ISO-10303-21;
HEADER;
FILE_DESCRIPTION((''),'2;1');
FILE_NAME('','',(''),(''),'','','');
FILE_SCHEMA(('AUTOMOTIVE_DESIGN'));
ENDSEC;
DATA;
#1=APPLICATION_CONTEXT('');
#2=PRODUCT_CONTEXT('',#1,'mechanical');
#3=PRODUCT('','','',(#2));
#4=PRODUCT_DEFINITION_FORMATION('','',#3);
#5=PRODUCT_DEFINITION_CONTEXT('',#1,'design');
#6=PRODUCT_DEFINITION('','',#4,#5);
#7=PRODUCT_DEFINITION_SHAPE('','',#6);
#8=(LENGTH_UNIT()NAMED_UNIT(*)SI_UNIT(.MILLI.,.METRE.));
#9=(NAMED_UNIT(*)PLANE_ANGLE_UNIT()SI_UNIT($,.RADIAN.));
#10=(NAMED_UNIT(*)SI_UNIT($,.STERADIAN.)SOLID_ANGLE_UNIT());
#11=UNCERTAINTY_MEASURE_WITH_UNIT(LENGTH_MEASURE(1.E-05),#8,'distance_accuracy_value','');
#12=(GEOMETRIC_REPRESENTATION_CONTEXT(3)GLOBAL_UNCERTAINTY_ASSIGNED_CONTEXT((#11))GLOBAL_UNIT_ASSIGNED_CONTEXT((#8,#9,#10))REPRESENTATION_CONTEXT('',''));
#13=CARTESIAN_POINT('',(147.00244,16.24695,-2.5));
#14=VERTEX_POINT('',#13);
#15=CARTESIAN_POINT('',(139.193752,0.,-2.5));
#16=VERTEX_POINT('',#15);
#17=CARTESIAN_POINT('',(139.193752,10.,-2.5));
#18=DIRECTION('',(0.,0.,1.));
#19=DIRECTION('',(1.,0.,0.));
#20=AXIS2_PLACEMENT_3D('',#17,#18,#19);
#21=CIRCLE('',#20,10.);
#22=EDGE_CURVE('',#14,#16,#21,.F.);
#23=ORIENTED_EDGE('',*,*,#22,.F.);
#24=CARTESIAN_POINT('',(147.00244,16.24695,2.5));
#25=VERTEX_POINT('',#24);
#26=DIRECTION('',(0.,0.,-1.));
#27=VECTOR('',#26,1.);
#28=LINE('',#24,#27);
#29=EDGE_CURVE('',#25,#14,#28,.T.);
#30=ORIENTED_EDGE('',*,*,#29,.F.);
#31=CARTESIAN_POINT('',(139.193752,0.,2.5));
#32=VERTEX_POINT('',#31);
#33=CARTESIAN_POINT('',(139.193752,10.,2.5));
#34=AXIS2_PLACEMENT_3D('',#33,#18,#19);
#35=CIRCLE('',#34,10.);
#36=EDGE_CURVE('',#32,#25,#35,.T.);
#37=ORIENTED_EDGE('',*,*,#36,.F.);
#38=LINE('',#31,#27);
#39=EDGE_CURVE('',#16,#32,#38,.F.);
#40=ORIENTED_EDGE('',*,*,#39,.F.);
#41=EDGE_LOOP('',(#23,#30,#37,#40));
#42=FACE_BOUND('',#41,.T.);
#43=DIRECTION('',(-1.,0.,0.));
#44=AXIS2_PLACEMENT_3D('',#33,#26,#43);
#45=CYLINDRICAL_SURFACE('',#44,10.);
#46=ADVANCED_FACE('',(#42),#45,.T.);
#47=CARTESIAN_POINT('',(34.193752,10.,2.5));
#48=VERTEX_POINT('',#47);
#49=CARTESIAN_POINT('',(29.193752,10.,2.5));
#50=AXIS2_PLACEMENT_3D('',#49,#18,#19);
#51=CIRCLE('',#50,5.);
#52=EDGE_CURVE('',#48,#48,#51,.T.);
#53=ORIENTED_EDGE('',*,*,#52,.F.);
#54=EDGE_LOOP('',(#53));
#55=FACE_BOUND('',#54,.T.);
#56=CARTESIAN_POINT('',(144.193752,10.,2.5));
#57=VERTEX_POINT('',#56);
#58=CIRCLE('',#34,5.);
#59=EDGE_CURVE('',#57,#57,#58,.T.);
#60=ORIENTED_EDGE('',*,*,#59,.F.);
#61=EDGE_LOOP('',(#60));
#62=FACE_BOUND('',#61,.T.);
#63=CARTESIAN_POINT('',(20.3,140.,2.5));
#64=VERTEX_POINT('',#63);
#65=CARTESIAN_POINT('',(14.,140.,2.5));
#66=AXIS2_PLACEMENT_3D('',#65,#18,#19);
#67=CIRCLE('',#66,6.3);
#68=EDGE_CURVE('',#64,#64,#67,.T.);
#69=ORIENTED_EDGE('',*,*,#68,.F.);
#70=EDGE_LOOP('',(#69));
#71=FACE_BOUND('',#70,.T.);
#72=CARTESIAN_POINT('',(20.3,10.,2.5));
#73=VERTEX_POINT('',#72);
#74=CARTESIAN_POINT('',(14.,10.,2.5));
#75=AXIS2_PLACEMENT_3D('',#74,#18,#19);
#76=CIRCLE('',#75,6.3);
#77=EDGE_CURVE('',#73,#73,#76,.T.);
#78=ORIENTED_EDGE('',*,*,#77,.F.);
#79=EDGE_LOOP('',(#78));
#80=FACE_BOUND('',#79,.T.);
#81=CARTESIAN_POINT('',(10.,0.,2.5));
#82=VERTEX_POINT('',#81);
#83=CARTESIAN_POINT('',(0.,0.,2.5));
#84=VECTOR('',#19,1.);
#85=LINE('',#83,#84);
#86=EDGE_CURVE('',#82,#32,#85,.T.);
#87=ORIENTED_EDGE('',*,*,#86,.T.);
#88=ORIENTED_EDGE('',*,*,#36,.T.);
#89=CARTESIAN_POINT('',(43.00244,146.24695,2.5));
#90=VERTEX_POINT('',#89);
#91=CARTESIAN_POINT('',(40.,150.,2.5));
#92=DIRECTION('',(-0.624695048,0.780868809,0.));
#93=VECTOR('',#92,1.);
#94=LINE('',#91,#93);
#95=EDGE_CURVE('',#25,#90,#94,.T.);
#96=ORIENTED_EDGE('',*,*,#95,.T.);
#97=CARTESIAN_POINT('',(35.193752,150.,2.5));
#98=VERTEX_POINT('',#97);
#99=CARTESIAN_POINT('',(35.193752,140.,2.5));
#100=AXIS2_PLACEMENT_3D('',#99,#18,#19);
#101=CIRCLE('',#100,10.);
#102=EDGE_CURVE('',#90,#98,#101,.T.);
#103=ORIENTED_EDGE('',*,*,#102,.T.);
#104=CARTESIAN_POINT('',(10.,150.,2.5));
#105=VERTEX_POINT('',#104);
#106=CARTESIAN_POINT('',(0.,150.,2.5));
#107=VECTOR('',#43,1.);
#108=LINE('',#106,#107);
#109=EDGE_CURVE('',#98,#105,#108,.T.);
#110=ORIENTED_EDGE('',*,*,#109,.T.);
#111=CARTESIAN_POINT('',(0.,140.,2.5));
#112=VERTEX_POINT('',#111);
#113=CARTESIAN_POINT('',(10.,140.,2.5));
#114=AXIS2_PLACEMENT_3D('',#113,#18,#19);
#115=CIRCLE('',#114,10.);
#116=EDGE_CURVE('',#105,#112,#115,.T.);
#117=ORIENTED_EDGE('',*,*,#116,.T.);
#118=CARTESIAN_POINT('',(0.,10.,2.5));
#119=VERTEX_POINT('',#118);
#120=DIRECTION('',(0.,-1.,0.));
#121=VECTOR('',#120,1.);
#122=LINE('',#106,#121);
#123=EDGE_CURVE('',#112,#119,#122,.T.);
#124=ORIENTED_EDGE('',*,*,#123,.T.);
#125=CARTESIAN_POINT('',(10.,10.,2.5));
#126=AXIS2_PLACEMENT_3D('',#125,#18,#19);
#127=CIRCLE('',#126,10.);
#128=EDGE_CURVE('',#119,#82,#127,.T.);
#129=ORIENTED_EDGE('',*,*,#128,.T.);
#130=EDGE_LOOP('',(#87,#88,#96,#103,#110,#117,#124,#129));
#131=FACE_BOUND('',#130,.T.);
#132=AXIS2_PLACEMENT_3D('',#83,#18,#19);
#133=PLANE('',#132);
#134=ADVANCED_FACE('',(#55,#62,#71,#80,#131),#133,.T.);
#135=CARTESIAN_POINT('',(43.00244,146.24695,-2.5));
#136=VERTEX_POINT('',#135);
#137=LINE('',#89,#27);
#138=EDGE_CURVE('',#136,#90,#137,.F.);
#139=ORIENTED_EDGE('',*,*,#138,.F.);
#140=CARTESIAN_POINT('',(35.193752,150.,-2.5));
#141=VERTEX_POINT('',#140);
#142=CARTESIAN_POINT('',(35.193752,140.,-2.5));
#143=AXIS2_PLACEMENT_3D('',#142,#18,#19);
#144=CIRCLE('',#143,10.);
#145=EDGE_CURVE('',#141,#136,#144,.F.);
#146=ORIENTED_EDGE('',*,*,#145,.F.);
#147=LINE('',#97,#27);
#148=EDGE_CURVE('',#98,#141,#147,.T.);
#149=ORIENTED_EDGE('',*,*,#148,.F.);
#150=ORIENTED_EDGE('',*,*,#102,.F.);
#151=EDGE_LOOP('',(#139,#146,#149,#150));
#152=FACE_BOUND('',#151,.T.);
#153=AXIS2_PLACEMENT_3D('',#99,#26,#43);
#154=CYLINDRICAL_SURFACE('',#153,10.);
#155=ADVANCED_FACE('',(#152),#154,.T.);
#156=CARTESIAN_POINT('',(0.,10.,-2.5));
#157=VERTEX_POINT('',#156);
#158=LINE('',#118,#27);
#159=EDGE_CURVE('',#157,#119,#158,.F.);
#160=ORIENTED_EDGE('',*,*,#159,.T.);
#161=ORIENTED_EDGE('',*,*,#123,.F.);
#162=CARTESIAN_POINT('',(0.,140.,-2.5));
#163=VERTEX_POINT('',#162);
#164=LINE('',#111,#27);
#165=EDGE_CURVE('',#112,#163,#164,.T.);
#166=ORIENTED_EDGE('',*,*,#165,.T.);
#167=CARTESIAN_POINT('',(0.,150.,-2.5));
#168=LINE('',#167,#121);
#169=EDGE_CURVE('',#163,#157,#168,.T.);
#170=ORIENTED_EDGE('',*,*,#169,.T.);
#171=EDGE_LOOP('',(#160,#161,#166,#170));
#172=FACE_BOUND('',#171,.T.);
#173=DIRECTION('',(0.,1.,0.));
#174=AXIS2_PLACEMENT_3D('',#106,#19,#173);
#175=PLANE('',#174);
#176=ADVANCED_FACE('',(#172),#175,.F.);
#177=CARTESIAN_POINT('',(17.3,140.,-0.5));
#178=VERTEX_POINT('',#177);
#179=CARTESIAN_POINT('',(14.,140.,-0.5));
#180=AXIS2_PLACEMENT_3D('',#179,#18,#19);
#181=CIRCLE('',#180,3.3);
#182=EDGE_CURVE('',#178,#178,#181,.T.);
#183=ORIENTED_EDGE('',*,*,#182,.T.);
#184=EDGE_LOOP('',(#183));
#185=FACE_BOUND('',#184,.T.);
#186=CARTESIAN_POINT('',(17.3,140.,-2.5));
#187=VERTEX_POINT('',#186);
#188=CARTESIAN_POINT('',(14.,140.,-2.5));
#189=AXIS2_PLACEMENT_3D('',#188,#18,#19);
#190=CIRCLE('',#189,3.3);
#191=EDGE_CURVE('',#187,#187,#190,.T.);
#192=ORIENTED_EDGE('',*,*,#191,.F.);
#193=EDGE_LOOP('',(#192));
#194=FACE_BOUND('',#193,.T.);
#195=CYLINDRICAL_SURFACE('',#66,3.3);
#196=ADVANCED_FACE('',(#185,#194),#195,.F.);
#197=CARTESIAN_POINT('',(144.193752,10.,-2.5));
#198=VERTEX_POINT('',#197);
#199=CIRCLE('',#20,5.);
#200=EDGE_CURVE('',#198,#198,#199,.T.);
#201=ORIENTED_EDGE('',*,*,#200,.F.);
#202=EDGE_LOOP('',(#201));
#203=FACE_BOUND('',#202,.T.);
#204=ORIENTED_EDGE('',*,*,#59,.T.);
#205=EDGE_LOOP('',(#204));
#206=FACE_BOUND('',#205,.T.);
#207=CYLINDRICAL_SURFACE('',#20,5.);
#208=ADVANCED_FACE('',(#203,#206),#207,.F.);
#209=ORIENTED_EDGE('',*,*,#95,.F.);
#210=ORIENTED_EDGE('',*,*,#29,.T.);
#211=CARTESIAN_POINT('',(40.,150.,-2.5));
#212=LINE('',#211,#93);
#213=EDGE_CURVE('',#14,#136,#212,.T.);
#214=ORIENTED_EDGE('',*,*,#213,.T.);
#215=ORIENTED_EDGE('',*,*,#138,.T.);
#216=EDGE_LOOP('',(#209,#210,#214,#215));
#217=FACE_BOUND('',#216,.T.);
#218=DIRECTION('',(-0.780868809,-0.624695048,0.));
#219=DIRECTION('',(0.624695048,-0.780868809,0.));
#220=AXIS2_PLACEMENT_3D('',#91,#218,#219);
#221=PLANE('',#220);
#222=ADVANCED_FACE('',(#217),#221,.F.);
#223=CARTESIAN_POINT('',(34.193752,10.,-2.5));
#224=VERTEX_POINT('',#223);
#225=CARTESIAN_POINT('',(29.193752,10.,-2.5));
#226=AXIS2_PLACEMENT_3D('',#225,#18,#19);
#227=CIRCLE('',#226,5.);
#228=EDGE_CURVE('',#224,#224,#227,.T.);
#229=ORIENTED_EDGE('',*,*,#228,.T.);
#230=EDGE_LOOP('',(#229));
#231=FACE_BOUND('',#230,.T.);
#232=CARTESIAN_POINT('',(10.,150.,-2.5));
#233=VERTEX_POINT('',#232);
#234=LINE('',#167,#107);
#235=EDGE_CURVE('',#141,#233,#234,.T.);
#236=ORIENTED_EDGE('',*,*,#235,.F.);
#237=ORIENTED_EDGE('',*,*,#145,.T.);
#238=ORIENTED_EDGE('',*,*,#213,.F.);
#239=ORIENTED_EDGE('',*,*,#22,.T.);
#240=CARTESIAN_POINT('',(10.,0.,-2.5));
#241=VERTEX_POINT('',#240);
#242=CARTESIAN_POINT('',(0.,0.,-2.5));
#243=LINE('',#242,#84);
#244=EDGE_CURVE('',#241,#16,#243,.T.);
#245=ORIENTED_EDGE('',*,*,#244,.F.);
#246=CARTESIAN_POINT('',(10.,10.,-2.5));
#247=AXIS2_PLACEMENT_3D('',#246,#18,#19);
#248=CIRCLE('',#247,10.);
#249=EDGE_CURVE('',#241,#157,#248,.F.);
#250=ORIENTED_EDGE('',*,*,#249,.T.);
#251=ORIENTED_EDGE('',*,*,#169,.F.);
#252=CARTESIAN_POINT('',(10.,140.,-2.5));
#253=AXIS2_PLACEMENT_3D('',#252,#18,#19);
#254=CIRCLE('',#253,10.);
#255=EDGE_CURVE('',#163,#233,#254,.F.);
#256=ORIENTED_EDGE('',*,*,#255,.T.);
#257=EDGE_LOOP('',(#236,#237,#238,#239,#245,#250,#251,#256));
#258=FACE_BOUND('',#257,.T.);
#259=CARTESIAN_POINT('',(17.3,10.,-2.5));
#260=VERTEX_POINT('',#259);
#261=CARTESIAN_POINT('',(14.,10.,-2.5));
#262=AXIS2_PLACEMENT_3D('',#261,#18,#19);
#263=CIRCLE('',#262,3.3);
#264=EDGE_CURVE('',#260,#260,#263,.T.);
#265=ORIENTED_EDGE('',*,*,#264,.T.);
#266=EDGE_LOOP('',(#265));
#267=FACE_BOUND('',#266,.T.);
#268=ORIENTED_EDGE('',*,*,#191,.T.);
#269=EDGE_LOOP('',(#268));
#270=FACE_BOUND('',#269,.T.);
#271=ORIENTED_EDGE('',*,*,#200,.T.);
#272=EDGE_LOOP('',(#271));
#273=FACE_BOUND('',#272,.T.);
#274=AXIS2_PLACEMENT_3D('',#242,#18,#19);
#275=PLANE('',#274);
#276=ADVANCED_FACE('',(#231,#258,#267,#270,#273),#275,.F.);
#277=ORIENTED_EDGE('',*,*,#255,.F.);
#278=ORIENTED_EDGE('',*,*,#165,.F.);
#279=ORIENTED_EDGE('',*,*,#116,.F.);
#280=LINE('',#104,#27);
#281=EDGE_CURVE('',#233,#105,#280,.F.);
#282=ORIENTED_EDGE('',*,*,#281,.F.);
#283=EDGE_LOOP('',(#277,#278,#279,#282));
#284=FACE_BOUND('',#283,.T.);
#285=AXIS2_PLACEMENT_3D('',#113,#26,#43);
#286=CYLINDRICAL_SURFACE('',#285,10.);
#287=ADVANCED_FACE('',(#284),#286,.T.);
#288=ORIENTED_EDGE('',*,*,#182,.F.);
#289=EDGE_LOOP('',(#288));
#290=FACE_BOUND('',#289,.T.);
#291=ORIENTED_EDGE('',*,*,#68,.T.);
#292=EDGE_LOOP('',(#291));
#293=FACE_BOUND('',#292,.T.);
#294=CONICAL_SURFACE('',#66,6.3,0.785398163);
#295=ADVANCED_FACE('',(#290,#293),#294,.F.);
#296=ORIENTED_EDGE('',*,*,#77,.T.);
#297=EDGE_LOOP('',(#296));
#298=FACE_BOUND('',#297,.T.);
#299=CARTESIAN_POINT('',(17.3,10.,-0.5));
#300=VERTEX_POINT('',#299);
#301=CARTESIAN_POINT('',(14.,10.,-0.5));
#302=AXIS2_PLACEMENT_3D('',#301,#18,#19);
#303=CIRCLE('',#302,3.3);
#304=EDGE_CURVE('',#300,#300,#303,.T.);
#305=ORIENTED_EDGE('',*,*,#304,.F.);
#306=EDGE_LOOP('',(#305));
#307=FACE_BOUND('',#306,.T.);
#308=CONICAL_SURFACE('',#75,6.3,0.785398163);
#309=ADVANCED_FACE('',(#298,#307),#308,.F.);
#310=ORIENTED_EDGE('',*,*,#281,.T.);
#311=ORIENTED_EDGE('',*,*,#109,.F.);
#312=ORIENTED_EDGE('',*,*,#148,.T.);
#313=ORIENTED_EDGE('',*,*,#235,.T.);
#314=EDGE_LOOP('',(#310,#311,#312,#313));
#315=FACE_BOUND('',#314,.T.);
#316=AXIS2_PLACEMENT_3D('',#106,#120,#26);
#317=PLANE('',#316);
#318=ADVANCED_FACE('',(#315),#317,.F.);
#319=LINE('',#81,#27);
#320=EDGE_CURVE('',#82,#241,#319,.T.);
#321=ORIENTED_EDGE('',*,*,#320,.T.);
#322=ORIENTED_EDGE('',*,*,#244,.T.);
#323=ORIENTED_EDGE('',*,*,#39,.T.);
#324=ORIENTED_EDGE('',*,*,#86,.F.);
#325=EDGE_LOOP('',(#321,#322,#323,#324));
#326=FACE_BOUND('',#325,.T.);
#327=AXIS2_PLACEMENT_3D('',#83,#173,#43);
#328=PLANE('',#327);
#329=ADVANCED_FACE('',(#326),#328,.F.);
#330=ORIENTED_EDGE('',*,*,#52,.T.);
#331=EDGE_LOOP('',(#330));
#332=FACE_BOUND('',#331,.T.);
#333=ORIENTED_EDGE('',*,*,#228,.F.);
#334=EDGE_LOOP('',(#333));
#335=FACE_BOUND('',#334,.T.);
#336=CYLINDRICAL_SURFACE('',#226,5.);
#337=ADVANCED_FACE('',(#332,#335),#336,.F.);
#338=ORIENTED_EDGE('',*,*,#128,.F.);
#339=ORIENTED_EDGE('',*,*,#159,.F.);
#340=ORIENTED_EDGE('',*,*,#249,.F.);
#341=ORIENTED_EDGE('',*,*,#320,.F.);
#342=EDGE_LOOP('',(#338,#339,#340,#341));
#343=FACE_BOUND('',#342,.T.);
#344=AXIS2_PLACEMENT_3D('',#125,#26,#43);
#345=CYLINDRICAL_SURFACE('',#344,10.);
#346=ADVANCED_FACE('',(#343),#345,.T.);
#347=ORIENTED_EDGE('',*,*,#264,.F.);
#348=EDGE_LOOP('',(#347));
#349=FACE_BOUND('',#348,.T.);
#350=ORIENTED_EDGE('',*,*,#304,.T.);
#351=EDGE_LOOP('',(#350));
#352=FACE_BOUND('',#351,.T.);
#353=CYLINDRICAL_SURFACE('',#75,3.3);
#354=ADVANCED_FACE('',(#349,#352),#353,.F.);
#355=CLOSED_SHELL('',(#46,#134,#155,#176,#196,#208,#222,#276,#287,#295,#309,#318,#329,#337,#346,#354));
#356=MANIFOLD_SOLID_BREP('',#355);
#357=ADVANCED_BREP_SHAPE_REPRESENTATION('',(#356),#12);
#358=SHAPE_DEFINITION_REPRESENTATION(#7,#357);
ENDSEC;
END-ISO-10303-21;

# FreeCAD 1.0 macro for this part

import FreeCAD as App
import Part
import Sketcher

V = App.Vector
Q = App.Units.Quantity


def edges_at(feature, points):
    """Names of the edges that pass closest to the given points."""
    edges = feature.Shape.Edges
    near = lambda p: min(range(len(edges)), key=lambda i: edges[i].distToShape(Part.Vertex(*p))[0])
    return sorted({f"Edge{near(p) + 1}" for p in points})


def add_polygon(sketch, points):
    """Adds a closed chain of lines whose ends are joined by coincident constraints."""
    first, n = sketch.GeometryCount, len(points)
    for a, b in zip(points, points[1:] + points[:1]):
        sketch.addGeometry(Part.LineSegment(App.Vector(*a, 0), App.Vector(*b, 0)), False)
    for i in range(n):
        sketch.addConstraint(Sketcher.Constraint("Coincident", first + i, 2, first + (i + 1) % n, 1))

doc = App.newDocument("Part")
body = doc.addObject("PartDesign::Body", "Body")

sketch1 = doc.addObject("Sketcher::SketchObject", "Sketch")
body.addObject(sketch1)
sketch1.AttachmentSupport = (doc.XY_Plane, [""])
sketch1.MapMode = "FlatFace"
add_polygon(sketch1, [(0, 0), (160, 0), (40, 150), (0, 150)])
sketch1.addConstraint([
    Sketcher.Constraint("Horizontal", 0),
    Sketcher.Constraint("Horizontal", 2),
    Sketcher.Constraint("Vertical", 3),
    Sketcher.Constraint("Coincident", 3, 2, -1, 1),
    Sketcher.Constraint("DistanceX", 0, 1, 0, 2, 160.0),
    Sketcher.Constraint("DistanceX", 2, 2, 2, 1, 40.0),
    Sketcher.Constraint("DistanceY", 3, 2, 3, 1, 150.0),
])
pad1 = doc.addObject("PartDesign::Pad", "Pad")
body.addObject(pad1)
pad1.Profile = sketch1
pad1.Length = 5
pad1.Midplane = True

sketch2 = doc.addObject("Sketcher::SketchObject", "Sketch001")
body.addObject(sketch2)
sketch2.AttachmentSupport = (doc.YZ_Plane, [""])
sketch2.MapMode = "FlatFace"
sketch2.AttachmentOffset = App.Placement(V(0, 0, 14), App.Rotation())
add_polygon(sketch2, [(140, -2.5), (140, 2.5), (133.7, 2.5), (136.7, -0.5), (136.7, -2.5)])
sketch2.addGeometry(Part.LineSegment(V(140, 2.5, 0), V(140, -2.5, 0)), True)
sketch2.addConstraint([
    Sketcher.Constraint("Vertical", 0),
    Sketcher.Constraint("Horizontal", 1),
    Sketcher.Constraint("Vertical", 3),
    Sketcher.Constraint("Horizontal", 4),
    Sketcher.Constraint("Vertical", 5),
    Sketcher.Constraint("Coincident", 5, 1, 0, 2),
    Sketcher.Constraint("Horizontal", 3, 2, 5, 2),
    Sketcher.Constraint("DistanceY", 0, 1, 0, 2, 5.0),
    Sketcher.Constraint("DistanceY", 3, 2, 3, 1, 2.0),
    Sketcher.Constraint("Angle", 2, Q("-45 deg")),
    Sketcher.Constraint("DistanceX", 1, 2, 1, 1, 6.3),
    Sketcher.Constraint("DistanceX", -1, 1, 0, 2, 140.0),
    Sketcher.Constraint("DistanceY", -1, 1, 0, 2, 2.5),
])
groove = doc.addObject("PartDesign::Groove", "Groove")
body.addObject(groove)
groove.Profile = sketch2
groove.ReferenceAxis = (sketch2, ["Axis0"])
groove.Angle = 360
doc.recompute()

linearpattern = doc.addObject("PartDesign::LinearPattern", "LinearPattern")
body.addObject(linearpattern)
linearpattern.Originals = [groove]
linearpattern.Direction = (doc.Y_Axis, [""])
linearpattern.Mode = "offset"
linearpattern.Offset = 130
linearpattern.Occurrences = 2
linearpattern.Reversed = True
body.Tip = linearpattern
doc.recompute()

fillet = doc.addObject("PartDesign::Fillet", "Fillet")
body.addObject(fillet)
fillet.Base = (linearpattern, edges_at(linearpattern, [
    (0, 150, 0),
    (40, 150, 0),
    (160, 0, 0),
    (0, 0, 0),
]))
fillet.Radius = 10

sketch3 = doc.addObject("Sketcher::SketchObject", "Sketch002")
body.addObject(sketch3)
sketch3.AttachmentSupport = (doc.XY_Plane, [""])
sketch3.MapMode = "FlatFace"
sketch3.AttachmentOffset = App.Placement(V(0, 0, 2.5), App.Rotation())
sketch3.addGeometry([
    Part.Circle(V(139, 10, 0), V(0, 0, 1), 5),
    Part.Circle(V(29, 10, 0), V(0, 0, 1), 5),
], False)
sketch3.addConstraint([
    Sketcher.Constraint("Equal", 0, 1),
    Sketcher.Constraint("Horizontal", 0, 3, 1, 3),
    Sketcher.Constraint("Diameter", 0, 10.0),
    Sketcher.Constraint("DistanceY", -1, 1, 0, 3, 10.0),
    Sketcher.Constraint("DistanceX", 1, 3, 0, 3, 110.0),
    Sketcher.Constraint("DistanceX", -1, 1, 0, 3, 139.193752),
])
pocket1 = doc.addObject("PartDesign::Pocket", "Pocket")
body.addObject(pocket1)
pocket1.Profile = sketch3
pocket1.Type = "ThroughAll"

doc.recompute()
